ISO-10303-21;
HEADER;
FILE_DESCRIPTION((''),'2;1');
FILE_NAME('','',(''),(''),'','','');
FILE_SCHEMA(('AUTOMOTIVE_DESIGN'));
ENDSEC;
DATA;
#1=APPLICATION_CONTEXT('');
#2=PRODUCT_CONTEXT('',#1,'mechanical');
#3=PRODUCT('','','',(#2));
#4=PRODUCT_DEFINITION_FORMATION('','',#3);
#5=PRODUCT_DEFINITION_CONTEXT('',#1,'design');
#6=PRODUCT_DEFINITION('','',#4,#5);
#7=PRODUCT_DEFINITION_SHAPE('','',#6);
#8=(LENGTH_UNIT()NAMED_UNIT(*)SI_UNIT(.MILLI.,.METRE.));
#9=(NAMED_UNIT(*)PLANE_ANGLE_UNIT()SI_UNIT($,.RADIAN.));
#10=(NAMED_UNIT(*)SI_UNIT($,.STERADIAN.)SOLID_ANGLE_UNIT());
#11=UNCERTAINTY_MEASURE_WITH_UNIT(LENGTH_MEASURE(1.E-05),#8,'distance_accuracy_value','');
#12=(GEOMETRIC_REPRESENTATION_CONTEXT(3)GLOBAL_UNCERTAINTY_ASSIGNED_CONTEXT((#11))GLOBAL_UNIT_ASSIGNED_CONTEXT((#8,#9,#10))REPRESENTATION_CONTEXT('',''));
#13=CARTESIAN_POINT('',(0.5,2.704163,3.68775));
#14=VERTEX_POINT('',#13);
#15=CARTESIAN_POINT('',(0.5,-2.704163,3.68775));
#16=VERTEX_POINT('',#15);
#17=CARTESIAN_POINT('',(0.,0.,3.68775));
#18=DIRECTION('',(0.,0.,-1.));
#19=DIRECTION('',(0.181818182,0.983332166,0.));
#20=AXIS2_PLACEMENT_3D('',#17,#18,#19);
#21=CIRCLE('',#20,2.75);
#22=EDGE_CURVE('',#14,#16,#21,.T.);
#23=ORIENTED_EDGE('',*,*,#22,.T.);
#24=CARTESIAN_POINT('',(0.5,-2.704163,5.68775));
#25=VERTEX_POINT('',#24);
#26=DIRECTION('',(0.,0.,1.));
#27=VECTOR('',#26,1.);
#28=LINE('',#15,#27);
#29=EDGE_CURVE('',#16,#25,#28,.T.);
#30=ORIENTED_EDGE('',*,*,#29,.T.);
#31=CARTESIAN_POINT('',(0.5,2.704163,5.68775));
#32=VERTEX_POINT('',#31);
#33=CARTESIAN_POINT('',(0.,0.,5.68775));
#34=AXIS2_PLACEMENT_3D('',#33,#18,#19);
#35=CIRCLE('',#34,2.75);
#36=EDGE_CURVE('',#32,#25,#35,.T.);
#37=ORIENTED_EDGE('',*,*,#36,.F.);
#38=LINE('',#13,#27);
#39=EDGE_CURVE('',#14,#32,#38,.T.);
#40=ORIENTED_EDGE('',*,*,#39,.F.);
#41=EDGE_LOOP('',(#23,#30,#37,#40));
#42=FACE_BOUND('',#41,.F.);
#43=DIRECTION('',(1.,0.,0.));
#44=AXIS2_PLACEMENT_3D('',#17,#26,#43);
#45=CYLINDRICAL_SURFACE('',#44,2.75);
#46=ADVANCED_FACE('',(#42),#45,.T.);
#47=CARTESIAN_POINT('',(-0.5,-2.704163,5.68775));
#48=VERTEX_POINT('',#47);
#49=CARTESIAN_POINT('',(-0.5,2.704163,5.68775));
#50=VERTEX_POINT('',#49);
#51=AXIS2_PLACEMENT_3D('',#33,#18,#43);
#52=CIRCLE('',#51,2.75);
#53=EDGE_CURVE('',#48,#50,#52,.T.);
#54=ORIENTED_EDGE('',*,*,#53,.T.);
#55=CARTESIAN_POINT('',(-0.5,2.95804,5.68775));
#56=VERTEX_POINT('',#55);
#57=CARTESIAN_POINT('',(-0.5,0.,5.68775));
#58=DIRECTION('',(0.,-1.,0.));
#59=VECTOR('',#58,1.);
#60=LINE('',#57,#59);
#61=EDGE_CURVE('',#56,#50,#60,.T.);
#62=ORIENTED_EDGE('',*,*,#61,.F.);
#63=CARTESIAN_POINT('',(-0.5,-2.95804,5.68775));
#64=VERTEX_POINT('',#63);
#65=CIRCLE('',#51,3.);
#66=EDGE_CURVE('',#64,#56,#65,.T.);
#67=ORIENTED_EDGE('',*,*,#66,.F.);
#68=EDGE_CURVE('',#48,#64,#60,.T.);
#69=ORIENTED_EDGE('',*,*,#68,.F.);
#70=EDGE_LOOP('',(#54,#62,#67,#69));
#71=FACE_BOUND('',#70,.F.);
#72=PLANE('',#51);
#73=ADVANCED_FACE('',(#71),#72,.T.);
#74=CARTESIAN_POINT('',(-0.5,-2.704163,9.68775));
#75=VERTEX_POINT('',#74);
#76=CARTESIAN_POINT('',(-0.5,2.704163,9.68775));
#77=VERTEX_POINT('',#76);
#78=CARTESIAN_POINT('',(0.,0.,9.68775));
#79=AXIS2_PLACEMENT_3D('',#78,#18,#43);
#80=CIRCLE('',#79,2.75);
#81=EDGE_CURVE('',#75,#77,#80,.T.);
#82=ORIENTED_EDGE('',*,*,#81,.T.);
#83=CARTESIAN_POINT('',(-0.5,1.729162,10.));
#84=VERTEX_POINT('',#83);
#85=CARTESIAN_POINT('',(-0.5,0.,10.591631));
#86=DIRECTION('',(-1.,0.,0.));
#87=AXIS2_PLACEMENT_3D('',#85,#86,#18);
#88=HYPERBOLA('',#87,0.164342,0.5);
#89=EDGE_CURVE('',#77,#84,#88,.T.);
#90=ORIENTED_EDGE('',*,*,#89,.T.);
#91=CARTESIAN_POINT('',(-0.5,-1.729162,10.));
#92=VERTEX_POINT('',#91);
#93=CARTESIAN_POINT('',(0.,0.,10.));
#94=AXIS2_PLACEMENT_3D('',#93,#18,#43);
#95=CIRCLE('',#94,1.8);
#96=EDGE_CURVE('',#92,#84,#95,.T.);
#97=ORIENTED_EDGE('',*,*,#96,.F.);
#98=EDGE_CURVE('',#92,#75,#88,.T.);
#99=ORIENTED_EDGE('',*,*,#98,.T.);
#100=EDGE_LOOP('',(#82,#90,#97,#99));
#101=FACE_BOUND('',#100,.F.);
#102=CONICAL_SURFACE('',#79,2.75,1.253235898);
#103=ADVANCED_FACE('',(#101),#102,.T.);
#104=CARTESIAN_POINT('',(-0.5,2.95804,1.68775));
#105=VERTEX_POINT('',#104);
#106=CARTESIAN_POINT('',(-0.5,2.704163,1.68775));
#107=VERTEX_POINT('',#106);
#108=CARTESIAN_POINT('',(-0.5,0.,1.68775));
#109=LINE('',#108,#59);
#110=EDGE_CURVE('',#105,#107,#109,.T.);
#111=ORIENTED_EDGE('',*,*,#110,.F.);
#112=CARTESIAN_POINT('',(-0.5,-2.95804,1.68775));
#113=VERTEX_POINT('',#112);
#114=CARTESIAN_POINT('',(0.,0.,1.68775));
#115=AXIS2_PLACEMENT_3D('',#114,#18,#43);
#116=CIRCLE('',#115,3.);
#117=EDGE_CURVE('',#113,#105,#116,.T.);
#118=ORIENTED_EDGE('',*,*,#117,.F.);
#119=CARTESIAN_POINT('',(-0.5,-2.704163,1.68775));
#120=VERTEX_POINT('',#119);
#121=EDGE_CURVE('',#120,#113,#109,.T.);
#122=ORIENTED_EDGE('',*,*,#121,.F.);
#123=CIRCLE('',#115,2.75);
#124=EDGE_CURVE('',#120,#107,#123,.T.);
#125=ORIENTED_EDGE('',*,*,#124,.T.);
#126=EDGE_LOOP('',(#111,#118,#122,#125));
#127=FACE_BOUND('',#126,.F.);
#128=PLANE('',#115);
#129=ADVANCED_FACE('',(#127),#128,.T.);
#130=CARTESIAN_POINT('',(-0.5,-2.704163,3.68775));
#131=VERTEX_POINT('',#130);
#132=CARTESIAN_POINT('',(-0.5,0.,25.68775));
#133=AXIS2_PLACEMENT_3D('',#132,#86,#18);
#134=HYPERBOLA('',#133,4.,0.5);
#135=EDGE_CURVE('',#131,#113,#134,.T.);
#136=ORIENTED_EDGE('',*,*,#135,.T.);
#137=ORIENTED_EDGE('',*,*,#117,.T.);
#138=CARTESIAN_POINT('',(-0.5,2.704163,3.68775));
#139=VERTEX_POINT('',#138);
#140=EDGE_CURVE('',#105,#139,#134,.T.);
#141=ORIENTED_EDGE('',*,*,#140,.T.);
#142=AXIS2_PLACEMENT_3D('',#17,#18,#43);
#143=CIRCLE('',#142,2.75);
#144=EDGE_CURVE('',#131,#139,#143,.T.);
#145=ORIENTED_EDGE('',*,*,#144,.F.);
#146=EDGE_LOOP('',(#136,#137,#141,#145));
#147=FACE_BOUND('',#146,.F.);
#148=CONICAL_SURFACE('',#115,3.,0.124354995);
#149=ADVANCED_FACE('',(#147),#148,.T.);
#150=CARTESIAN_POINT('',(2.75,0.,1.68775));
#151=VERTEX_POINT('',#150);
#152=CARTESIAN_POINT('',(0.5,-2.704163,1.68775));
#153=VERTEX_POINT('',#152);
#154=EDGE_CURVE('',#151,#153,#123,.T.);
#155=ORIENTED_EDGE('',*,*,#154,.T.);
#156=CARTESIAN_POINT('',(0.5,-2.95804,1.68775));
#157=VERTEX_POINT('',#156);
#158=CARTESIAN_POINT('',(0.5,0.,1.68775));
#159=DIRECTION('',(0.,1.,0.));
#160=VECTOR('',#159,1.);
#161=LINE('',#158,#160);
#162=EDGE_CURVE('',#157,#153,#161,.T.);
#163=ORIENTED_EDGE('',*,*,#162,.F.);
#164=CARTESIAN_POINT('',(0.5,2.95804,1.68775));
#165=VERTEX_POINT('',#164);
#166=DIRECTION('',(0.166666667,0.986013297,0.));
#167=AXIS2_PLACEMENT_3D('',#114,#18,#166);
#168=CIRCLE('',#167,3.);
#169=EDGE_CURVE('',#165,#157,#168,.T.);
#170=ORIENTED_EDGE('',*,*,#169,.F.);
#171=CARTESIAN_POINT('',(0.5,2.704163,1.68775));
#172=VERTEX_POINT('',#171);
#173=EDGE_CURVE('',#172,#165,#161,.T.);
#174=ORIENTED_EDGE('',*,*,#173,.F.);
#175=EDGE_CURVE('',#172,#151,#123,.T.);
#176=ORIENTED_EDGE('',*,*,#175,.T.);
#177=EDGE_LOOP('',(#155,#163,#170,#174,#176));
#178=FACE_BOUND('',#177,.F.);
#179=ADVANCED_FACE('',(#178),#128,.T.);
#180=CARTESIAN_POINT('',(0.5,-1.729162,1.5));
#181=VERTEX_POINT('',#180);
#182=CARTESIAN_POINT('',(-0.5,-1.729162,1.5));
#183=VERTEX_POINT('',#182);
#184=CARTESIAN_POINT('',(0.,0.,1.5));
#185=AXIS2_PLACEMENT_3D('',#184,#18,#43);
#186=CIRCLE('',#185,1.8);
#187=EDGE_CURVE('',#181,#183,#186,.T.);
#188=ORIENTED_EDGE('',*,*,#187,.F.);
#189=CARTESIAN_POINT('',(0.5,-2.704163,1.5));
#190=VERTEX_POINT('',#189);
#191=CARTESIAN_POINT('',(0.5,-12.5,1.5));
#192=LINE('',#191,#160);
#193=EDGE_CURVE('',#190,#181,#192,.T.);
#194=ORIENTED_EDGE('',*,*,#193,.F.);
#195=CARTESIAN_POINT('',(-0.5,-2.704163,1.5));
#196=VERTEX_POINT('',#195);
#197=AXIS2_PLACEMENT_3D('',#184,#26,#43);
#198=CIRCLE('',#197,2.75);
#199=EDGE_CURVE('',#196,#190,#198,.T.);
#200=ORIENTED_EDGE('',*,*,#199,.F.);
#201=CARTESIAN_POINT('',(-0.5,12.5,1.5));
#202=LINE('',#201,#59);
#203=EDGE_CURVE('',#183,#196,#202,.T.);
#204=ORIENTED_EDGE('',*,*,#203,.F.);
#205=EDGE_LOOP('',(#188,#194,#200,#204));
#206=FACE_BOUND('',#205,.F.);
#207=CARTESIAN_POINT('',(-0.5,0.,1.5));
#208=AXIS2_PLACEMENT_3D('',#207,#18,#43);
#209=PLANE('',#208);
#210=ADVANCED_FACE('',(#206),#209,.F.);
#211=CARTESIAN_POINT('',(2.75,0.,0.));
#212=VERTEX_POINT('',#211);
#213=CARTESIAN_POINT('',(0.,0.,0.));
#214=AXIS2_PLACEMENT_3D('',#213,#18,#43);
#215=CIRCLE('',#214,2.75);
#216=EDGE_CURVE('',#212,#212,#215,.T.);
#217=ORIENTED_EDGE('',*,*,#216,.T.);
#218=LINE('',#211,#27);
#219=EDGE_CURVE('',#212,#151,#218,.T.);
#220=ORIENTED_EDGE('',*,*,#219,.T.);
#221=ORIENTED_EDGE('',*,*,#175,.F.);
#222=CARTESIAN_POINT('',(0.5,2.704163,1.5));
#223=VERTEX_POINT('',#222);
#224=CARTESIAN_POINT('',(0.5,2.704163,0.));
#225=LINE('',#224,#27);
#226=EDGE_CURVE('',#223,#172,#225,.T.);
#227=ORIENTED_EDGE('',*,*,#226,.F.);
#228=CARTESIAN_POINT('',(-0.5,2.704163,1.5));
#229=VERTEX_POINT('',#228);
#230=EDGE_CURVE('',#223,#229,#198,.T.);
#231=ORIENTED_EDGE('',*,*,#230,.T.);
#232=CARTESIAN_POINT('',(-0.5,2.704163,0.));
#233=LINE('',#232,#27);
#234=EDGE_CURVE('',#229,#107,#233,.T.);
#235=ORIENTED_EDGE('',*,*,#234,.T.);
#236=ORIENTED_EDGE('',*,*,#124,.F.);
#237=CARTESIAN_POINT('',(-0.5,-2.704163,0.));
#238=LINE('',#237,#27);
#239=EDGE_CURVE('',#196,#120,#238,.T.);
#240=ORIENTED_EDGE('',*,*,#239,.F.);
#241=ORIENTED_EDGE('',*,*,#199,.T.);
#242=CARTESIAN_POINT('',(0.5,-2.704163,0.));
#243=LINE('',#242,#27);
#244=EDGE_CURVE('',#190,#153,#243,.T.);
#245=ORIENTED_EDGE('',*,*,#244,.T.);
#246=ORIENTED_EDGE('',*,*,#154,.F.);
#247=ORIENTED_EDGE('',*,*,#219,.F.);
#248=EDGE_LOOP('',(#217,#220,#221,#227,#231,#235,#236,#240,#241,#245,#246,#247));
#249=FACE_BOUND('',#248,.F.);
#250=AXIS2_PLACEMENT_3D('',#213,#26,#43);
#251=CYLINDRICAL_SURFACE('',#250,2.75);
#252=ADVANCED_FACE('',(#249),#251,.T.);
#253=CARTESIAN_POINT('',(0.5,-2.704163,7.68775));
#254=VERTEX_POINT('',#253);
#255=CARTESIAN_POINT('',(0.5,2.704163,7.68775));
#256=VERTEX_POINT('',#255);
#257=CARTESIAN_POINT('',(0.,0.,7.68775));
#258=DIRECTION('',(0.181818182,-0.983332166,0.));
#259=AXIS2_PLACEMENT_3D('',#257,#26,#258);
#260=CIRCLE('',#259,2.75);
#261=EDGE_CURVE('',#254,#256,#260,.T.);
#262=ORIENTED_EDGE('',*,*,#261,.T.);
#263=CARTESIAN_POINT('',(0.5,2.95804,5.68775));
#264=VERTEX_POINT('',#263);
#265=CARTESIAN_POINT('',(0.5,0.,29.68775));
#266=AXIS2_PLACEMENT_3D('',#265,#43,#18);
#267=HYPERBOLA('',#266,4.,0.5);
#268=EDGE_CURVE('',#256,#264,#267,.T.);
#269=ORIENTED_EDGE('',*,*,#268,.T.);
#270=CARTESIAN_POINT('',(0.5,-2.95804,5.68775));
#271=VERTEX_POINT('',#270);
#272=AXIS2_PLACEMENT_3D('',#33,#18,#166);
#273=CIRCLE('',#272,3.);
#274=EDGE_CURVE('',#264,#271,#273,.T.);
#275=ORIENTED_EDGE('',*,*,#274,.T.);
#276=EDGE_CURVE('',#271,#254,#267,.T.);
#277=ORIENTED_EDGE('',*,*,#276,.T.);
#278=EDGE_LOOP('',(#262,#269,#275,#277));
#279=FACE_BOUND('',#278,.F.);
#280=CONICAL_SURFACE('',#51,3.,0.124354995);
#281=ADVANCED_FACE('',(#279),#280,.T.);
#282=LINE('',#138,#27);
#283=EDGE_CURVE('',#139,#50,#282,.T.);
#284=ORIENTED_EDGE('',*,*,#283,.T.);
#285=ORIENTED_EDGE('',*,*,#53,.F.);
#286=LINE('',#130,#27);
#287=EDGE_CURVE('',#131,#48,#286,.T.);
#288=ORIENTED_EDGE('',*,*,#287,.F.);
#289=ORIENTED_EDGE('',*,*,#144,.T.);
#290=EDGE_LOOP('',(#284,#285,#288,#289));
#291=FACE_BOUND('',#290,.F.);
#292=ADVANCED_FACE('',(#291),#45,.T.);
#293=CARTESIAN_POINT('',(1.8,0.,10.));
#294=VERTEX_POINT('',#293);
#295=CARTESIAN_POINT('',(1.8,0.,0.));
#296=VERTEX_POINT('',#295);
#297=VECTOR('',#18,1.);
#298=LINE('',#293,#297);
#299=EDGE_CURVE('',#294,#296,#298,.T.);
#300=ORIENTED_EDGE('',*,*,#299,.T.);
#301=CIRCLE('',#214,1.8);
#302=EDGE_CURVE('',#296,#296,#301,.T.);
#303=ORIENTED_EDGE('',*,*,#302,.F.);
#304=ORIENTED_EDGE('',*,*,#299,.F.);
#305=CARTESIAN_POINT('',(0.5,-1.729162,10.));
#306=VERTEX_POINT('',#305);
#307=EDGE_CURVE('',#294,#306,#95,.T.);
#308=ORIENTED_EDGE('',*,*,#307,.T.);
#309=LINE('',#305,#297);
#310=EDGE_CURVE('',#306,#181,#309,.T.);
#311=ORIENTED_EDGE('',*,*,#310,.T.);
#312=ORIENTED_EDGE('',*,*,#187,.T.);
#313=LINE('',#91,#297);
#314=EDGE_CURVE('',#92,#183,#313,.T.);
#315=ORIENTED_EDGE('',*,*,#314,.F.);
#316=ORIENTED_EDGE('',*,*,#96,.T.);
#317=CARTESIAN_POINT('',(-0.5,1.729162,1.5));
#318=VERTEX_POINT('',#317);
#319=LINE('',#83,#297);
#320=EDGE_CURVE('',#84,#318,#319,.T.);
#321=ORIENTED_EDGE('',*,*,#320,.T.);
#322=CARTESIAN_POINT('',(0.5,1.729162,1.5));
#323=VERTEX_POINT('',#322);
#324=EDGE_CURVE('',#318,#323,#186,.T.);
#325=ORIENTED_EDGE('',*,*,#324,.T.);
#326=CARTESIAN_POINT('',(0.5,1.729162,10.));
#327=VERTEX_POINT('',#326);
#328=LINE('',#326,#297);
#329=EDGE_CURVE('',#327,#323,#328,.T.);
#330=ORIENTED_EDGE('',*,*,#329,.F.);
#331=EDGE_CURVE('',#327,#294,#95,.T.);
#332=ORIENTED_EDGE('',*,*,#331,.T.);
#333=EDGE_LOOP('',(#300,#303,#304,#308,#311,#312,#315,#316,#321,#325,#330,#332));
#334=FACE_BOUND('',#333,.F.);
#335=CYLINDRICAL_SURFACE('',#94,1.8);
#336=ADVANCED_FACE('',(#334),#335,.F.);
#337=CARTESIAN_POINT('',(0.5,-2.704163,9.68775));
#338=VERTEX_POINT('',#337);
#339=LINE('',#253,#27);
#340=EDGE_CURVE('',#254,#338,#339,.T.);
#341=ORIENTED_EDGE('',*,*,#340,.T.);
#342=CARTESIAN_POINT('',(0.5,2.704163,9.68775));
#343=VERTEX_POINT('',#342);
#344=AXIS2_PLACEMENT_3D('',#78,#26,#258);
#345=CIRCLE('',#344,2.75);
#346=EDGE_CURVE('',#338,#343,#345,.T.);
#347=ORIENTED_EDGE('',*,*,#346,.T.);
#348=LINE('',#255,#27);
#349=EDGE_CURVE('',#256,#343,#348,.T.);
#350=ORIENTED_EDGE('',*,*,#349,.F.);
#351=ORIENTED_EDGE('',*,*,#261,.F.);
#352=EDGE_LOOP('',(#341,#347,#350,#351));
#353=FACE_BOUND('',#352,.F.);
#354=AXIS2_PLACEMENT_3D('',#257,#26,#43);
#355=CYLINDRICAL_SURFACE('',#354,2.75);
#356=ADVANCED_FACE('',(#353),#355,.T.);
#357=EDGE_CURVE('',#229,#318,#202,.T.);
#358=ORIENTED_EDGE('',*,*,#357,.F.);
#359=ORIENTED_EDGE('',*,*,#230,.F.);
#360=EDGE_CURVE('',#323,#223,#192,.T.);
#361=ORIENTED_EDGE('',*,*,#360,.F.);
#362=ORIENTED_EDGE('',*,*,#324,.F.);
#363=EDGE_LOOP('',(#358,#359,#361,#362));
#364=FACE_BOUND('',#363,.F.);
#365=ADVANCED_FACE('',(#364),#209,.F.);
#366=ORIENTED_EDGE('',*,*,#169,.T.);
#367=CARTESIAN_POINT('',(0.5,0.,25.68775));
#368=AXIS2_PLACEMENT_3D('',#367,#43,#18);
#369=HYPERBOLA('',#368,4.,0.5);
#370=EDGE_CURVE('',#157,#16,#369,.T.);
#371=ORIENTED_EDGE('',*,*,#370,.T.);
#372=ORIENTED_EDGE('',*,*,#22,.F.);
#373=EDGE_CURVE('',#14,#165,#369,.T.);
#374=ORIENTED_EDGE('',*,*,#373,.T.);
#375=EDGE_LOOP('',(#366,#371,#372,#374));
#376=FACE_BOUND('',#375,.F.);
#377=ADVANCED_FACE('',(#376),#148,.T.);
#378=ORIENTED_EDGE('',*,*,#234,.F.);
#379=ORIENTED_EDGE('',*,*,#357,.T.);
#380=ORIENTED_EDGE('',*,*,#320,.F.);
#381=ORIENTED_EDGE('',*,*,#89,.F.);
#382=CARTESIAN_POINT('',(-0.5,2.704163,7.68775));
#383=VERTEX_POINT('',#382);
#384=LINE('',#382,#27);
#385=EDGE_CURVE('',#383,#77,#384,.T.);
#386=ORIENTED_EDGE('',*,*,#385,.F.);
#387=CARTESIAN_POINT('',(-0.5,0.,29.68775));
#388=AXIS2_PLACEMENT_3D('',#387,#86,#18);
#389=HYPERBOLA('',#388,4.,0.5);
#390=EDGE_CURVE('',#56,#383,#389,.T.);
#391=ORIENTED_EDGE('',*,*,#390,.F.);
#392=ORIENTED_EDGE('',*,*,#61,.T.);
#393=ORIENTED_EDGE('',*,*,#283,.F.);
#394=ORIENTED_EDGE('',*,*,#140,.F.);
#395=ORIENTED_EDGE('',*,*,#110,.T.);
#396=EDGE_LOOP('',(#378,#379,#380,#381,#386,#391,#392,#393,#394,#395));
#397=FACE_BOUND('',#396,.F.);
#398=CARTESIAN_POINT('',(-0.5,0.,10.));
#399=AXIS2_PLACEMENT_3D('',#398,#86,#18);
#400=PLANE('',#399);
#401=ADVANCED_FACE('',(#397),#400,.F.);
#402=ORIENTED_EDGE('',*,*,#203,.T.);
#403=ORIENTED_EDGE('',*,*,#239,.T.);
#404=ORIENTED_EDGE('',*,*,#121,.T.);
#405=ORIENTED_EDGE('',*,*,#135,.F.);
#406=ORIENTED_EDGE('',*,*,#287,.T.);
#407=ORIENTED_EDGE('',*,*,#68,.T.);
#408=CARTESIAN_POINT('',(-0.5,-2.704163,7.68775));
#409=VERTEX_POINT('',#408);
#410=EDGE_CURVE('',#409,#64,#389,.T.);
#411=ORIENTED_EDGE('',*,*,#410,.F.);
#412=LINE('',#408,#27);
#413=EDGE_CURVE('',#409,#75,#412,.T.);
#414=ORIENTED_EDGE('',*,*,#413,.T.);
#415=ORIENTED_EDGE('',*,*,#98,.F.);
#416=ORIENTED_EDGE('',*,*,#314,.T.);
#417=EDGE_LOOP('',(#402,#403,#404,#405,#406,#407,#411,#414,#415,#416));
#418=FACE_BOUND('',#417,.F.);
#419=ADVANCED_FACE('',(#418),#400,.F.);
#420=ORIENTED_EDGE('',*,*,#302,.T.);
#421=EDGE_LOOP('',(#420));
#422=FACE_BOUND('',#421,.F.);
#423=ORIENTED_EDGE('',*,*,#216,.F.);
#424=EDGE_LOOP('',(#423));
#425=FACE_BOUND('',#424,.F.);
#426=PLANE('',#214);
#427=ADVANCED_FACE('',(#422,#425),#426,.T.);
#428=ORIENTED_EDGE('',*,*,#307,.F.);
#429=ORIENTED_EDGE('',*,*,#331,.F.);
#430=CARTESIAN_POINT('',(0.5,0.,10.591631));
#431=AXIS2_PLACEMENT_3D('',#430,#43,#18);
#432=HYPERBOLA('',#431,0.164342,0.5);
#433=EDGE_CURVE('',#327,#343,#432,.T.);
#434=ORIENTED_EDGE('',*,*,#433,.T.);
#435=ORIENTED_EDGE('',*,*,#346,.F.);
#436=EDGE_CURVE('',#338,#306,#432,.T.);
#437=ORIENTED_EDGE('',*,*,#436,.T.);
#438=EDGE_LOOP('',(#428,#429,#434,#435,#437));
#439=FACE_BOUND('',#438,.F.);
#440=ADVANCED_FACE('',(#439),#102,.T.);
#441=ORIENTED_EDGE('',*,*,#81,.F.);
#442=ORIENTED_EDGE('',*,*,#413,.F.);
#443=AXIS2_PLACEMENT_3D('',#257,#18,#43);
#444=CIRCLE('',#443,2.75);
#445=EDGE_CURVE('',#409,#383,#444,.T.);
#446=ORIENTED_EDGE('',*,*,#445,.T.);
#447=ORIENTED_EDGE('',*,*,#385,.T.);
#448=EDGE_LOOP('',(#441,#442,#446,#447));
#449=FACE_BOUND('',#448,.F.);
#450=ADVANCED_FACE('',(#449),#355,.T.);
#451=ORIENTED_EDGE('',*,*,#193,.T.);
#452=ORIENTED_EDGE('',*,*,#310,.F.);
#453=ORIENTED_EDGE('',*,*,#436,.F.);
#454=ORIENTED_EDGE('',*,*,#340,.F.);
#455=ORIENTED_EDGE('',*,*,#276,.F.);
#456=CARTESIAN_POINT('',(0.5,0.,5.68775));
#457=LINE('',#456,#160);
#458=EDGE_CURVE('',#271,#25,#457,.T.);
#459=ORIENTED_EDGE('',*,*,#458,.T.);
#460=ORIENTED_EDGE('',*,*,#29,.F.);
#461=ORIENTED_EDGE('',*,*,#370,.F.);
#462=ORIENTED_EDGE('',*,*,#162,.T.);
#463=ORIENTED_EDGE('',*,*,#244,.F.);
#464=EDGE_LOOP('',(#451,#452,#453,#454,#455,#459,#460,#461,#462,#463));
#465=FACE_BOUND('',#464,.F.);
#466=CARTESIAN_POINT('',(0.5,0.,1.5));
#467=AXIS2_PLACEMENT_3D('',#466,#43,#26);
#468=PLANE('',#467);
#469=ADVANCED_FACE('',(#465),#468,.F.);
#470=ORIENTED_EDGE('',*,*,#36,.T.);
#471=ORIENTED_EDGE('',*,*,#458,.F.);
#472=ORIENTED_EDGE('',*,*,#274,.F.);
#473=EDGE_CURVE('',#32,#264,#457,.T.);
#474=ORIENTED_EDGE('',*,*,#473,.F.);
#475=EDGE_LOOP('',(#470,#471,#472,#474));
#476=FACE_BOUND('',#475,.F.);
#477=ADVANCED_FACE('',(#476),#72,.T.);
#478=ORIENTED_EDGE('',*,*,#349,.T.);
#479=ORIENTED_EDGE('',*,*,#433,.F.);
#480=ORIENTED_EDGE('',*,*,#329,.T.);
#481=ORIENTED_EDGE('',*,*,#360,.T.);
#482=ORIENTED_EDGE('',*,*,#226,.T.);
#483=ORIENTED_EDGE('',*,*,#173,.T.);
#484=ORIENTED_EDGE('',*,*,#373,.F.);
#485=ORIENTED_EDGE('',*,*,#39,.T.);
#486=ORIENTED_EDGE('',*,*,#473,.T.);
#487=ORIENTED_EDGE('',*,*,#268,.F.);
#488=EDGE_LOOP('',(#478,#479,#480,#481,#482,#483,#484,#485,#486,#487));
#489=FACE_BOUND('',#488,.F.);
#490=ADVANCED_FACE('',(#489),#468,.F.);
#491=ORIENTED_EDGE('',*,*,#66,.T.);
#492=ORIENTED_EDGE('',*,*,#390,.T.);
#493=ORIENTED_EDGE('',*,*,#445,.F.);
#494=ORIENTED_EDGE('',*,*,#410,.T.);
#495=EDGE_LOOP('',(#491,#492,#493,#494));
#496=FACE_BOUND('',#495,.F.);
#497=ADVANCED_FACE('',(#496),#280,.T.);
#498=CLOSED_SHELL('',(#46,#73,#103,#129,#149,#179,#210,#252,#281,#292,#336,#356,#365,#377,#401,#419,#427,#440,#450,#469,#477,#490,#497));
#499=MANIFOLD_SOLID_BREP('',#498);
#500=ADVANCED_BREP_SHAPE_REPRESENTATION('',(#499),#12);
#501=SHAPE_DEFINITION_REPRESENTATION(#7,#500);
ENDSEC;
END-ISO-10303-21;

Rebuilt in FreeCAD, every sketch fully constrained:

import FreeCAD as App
import Part
import Sketcher
from FreeCAD import Vector


def add_polygon(sketch, points):
    """Adds a closed chain of lines whose ends are joined by coincident constraints."""
    first, n = sketch.GeometryCount, len(points)
    for a, b in zip(points, points[1:] + points[:1]):
        sketch.addGeometry(Part.LineSegment(App.Vector(*a, 0), App.Vector(*b, 0)), False)
    for i in range(n):
        sketch.addConstraint(Sketcher.Constraint("Coincident", first + i, 2, first + (i + 1) % n, 1))

doc = App.newDocument("Part")
body = doc.addObject("PartDesign::Body", "Body")

# Sketch on XZ plane
sketch1 = body.newObject("Sketcher::SketchObject", "Sketch")
sketch1.AttachmentSupport = (doc.getObject("XZ_Plane"), [""])
sketch1.MapMode = "FlatFace"
add_polygon(sketch1, [(2.75, 9.69), (1.8, 10), (1.8, 0), (2.75, 0), (2.75, 1.69), (3, 1.69), (2.75, 3.69), (2.75, 5.69), (3, 5.69), (2.75, 7.69)])  # lines 0-9
sketch1.addConstraint([
    Sketcher.Constraint("Vertical", 1),
    Sketcher.Constraint("Horizontal", 2),
    Sketcher.Constraint("Vertical", 3),
    Sketcher.Constraint("Horizontal", 4),
    Sketcher.Constraint("Vertical", 6),
    Sketcher.Constraint("Horizontal", 7),
    Sketcher.Constraint("Vertical", 9),
    Sketcher.Constraint("PointOnObject", 1, 2, -1),
    Sketcher.Constraint("Parallel", 5, 8),
    Sketcher.Constraint("Vertical", 3, 2, 5, 2),
    Sketcher.Constraint("Vertical", 4, 2, 7, 2),
    Sketcher.Constraint("Vertical", 6, 2, 8, 2),
    Sketcher.Constraint("Equal", 6, 9),
    Sketcher.Constraint("DistanceY", 1, 2, 1, 1, 10.0),
    Sketcher.Constraint("DistanceY", 6, 1, 6, 2, 2.0),
    Sketcher.Constraint("Distance", 0, 1.0),
    Sketcher.Constraint("DistanceX", -1, 1, 4, 2, 3.0),
    Sketcher.Constraint("DistanceY", 3, 2, 5, 2, 2.0),
    Sketcher.Constraint("DistanceX", 2, 1, 2, 2, 0.95),
    Sketcher.Constraint("DistanceX", 4, 1, 4, 2, 0.25),
])
revolution = body.newObject("PartDesign::Revolution", "Revolution")
revolution.Profile = sketch1
revolution.ReferenceAxis = (sketch1, ["V_Axis"])
revolution.Angle = 360

# Sketch on XZ plane
sketch2 = body.newObject("Sketcher::SketchObject", "Sketch001")
sketch2.AttachmentSupport = (doc.getObject("XZ_Plane"), [""])
sketch2.MapMode = "FlatFace"
add_polygon(sketch2, [(0.5, 10), (-0.5, 10), (-0.5, 1.5), (0.5, 1.5)])  # lines 0-3
sketch2.addConstraint([
    Sketcher.Constraint("Horizontal", 0),
    Sketcher.Constraint("Vertical", 1),
    Sketcher.Constraint("Horizontal", 2),
    Sketcher.Constraint("Vertical", 3),
    Sketcher.Constraint("DistanceX", 0, 2, 0, 1, 1.0),
    Sketcher.Constraint("DistanceY", 1, 2, 1, 1, 8.5),
    Sketcher.Constraint("DistanceY", -1, 1, 0, 2, 10.0),
    Sketcher.Constraint("DistanceX", 0, 2, -1, 1, 0.5),
])
pocket1 = body.newObject("PartDesign::Pocket", "Pocket")
pocket1.Profile = sketch2
pocket1.Length = 25
pocket1.Midplane = True

doc.recompute()
